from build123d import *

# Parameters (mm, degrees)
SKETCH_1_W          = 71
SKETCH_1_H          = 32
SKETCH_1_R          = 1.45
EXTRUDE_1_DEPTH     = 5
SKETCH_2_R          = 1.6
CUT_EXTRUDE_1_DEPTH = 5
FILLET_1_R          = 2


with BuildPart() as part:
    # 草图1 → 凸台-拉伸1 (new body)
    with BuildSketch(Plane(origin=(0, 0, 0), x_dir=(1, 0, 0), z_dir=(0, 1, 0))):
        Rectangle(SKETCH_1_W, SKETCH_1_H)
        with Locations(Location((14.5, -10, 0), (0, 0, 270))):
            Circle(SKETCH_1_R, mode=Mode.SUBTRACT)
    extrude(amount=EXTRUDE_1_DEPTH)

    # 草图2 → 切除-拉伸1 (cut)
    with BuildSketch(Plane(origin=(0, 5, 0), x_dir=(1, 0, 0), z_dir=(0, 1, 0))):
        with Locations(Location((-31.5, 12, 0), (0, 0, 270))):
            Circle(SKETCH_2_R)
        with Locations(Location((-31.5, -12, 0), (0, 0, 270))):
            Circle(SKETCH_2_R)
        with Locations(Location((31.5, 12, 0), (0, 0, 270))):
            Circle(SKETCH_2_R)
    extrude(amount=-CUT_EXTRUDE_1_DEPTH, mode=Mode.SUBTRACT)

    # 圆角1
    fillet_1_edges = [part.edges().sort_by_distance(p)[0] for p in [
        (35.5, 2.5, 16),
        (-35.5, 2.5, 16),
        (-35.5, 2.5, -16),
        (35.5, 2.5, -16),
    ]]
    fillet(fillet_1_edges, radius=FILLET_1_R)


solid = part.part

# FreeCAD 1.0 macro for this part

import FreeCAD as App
import Part
import Sketcher
Q = App.Units.Quantity


def edges_at(feature, points):
    """Names of the edges that pass closest to the given points."""
    edges = feature.Shape.Edges
    near = lambda p: min(range(len(edges)), key=lambda i: edges[i].distToShape(Part.Vertex(*p))[0])
    return sorted({f"Edge{near(p) + 1}" for p in points})

doc = App.newDocument("Part")
body = doc.addObject("PartDesign::Body", "Body")

# Sketch on XZ plane
sketch1 = body.newObject("Sketcher::SketchObject", "Sketch")
sketch1.AttachmentSupport = (doc.getObject("XZ_Plane"), [""])
sketch1.MapMode = "FlatFace"
sketch1.addGeometry([
    Part.LineSegment(App.Vector(-35.5, -16, 0), App.Vector(-35.5, 16, 0)),  # 0
    Part.LineSegment(App.Vector(-35.5, 16, 0), App.Vector(35.5, 16, 0)),  # 1
    Part.LineSegment(App.Vector(35.5, 16, 0), App.Vector(35.5, -16, 0)),  # 2
    Part.LineSegment(App.Vector(35.5, -16, 0), App.Vector(-35.5, -16, 0)),  # 3
    Part.Circle(App.Vector(14.5, 10, 0), App.Vector(0, 0, 1), 1.45),  # 4
], False)
sketch1.addConstraint([
    Sketcher.Constraint("Coincident", 0, 2, 1, 1),
    Sketcher.Constraint("Coincident", 1, 2, 2, 1),
    Sketcher.Constraint("Coincident", 2, 2, 3, 1),
    Sketcher.Constraint("Coincident", 3, 2, 0, 1),
    Sketcher.Constraint("Vertical", 0),
    Sketcher.Constraint("Horizontal", 1),
    Sketcher.Constraint("Vertical", 2),
    Sketcher.Constraint("Horizontal", 3),
    Sketcher.Constraint("Symmetric", 0, 2, 2, 2, -1, 1),
    Sketcher.Constraint("Diameter", 4, Q("2.9 mm")),
    Sketcher.Constraint("DistanceX", 1, 1, 1, 2, Q("71 mm")),
    Sketcher.Constraint("DistanceY", 0, 1, 0, 2, Q("32 mm")),
    Sketcher.Constraint("DistanceY", -1, 1, 4, 3, Q("10 mm")),
    Sketcher.Constraint("DistanceX", 0, 2, 4, 3, Q("50 mm")),
])
pad1 = body.newObject("PartDesign::Pad", "Pad")
pad1.Profile = sketch1
pad1.Length = 5
pad1.Reversed = True

# Sketch on XZ plane
sketch2 = body.newObject("Sketcher::SketchObject", "Sketch001")
sketch2.AttachmentSupport = (doc.getObject("XZ_Plane"), [""])
sketch2.MapMode = "FlatFace"
sketch2.AttachmentOffset = App.Placement(App.Vector(0, 0, -5), App.Rotation())
sketch2.addGeometry([
    Part.Circle(App.Vector(-31.5, -12, 0), App.Vector(0, 0, 1), 1.6),
    Part.Circle(App.Vector(-31.5, 12, 0), App.Vector(0, 0, 1), 1.6),
    Part.Circle(App.Vector(31.5, -12, 0), App.Vector(0, 0, 1), 1.6),
], False)
sketch2.addConstraint([
    Sketcher.Constraint("Equal", 0, 1),
    Sketcher.Constraint("Equal", 1, 2),
    Sketcher.Constraint("Symmetric", 1, 3, 2, 3, -1, 1),
    Sketcher.Constraint("Symmetric", 0, 3, 2, 3, -2),
    Sketcher.Constraint("Diameter", 0, Q("3.2 mm")),
    Sketcher.Constraint("DistanceY", 0, 3, -1, 1, Q("12 mm")),
    Sketcher.Constraint("DistanceX", 0, 3, 2, 3, Q("63 mm")),
])
pocket1 = body.newObject("PartDesign::Pocket", "Pocket")
pocket1.Profile = sketch2
pocket1.Length = 5
pocket1.Reversed = True
doc.recompute()

fillet = body.newObject("PartDesign::Fillet", "Fillet")
fillet.Base = (pocket1, edges_at(pocket1, [
    (35.5, 2.5, 16),
    (-35.5, 2.5, 16),
    (-35.5, 2.5, -16),
    (35.5, 2.5, -16),
]))
fillet.Radius = 2

doc.recompute()
